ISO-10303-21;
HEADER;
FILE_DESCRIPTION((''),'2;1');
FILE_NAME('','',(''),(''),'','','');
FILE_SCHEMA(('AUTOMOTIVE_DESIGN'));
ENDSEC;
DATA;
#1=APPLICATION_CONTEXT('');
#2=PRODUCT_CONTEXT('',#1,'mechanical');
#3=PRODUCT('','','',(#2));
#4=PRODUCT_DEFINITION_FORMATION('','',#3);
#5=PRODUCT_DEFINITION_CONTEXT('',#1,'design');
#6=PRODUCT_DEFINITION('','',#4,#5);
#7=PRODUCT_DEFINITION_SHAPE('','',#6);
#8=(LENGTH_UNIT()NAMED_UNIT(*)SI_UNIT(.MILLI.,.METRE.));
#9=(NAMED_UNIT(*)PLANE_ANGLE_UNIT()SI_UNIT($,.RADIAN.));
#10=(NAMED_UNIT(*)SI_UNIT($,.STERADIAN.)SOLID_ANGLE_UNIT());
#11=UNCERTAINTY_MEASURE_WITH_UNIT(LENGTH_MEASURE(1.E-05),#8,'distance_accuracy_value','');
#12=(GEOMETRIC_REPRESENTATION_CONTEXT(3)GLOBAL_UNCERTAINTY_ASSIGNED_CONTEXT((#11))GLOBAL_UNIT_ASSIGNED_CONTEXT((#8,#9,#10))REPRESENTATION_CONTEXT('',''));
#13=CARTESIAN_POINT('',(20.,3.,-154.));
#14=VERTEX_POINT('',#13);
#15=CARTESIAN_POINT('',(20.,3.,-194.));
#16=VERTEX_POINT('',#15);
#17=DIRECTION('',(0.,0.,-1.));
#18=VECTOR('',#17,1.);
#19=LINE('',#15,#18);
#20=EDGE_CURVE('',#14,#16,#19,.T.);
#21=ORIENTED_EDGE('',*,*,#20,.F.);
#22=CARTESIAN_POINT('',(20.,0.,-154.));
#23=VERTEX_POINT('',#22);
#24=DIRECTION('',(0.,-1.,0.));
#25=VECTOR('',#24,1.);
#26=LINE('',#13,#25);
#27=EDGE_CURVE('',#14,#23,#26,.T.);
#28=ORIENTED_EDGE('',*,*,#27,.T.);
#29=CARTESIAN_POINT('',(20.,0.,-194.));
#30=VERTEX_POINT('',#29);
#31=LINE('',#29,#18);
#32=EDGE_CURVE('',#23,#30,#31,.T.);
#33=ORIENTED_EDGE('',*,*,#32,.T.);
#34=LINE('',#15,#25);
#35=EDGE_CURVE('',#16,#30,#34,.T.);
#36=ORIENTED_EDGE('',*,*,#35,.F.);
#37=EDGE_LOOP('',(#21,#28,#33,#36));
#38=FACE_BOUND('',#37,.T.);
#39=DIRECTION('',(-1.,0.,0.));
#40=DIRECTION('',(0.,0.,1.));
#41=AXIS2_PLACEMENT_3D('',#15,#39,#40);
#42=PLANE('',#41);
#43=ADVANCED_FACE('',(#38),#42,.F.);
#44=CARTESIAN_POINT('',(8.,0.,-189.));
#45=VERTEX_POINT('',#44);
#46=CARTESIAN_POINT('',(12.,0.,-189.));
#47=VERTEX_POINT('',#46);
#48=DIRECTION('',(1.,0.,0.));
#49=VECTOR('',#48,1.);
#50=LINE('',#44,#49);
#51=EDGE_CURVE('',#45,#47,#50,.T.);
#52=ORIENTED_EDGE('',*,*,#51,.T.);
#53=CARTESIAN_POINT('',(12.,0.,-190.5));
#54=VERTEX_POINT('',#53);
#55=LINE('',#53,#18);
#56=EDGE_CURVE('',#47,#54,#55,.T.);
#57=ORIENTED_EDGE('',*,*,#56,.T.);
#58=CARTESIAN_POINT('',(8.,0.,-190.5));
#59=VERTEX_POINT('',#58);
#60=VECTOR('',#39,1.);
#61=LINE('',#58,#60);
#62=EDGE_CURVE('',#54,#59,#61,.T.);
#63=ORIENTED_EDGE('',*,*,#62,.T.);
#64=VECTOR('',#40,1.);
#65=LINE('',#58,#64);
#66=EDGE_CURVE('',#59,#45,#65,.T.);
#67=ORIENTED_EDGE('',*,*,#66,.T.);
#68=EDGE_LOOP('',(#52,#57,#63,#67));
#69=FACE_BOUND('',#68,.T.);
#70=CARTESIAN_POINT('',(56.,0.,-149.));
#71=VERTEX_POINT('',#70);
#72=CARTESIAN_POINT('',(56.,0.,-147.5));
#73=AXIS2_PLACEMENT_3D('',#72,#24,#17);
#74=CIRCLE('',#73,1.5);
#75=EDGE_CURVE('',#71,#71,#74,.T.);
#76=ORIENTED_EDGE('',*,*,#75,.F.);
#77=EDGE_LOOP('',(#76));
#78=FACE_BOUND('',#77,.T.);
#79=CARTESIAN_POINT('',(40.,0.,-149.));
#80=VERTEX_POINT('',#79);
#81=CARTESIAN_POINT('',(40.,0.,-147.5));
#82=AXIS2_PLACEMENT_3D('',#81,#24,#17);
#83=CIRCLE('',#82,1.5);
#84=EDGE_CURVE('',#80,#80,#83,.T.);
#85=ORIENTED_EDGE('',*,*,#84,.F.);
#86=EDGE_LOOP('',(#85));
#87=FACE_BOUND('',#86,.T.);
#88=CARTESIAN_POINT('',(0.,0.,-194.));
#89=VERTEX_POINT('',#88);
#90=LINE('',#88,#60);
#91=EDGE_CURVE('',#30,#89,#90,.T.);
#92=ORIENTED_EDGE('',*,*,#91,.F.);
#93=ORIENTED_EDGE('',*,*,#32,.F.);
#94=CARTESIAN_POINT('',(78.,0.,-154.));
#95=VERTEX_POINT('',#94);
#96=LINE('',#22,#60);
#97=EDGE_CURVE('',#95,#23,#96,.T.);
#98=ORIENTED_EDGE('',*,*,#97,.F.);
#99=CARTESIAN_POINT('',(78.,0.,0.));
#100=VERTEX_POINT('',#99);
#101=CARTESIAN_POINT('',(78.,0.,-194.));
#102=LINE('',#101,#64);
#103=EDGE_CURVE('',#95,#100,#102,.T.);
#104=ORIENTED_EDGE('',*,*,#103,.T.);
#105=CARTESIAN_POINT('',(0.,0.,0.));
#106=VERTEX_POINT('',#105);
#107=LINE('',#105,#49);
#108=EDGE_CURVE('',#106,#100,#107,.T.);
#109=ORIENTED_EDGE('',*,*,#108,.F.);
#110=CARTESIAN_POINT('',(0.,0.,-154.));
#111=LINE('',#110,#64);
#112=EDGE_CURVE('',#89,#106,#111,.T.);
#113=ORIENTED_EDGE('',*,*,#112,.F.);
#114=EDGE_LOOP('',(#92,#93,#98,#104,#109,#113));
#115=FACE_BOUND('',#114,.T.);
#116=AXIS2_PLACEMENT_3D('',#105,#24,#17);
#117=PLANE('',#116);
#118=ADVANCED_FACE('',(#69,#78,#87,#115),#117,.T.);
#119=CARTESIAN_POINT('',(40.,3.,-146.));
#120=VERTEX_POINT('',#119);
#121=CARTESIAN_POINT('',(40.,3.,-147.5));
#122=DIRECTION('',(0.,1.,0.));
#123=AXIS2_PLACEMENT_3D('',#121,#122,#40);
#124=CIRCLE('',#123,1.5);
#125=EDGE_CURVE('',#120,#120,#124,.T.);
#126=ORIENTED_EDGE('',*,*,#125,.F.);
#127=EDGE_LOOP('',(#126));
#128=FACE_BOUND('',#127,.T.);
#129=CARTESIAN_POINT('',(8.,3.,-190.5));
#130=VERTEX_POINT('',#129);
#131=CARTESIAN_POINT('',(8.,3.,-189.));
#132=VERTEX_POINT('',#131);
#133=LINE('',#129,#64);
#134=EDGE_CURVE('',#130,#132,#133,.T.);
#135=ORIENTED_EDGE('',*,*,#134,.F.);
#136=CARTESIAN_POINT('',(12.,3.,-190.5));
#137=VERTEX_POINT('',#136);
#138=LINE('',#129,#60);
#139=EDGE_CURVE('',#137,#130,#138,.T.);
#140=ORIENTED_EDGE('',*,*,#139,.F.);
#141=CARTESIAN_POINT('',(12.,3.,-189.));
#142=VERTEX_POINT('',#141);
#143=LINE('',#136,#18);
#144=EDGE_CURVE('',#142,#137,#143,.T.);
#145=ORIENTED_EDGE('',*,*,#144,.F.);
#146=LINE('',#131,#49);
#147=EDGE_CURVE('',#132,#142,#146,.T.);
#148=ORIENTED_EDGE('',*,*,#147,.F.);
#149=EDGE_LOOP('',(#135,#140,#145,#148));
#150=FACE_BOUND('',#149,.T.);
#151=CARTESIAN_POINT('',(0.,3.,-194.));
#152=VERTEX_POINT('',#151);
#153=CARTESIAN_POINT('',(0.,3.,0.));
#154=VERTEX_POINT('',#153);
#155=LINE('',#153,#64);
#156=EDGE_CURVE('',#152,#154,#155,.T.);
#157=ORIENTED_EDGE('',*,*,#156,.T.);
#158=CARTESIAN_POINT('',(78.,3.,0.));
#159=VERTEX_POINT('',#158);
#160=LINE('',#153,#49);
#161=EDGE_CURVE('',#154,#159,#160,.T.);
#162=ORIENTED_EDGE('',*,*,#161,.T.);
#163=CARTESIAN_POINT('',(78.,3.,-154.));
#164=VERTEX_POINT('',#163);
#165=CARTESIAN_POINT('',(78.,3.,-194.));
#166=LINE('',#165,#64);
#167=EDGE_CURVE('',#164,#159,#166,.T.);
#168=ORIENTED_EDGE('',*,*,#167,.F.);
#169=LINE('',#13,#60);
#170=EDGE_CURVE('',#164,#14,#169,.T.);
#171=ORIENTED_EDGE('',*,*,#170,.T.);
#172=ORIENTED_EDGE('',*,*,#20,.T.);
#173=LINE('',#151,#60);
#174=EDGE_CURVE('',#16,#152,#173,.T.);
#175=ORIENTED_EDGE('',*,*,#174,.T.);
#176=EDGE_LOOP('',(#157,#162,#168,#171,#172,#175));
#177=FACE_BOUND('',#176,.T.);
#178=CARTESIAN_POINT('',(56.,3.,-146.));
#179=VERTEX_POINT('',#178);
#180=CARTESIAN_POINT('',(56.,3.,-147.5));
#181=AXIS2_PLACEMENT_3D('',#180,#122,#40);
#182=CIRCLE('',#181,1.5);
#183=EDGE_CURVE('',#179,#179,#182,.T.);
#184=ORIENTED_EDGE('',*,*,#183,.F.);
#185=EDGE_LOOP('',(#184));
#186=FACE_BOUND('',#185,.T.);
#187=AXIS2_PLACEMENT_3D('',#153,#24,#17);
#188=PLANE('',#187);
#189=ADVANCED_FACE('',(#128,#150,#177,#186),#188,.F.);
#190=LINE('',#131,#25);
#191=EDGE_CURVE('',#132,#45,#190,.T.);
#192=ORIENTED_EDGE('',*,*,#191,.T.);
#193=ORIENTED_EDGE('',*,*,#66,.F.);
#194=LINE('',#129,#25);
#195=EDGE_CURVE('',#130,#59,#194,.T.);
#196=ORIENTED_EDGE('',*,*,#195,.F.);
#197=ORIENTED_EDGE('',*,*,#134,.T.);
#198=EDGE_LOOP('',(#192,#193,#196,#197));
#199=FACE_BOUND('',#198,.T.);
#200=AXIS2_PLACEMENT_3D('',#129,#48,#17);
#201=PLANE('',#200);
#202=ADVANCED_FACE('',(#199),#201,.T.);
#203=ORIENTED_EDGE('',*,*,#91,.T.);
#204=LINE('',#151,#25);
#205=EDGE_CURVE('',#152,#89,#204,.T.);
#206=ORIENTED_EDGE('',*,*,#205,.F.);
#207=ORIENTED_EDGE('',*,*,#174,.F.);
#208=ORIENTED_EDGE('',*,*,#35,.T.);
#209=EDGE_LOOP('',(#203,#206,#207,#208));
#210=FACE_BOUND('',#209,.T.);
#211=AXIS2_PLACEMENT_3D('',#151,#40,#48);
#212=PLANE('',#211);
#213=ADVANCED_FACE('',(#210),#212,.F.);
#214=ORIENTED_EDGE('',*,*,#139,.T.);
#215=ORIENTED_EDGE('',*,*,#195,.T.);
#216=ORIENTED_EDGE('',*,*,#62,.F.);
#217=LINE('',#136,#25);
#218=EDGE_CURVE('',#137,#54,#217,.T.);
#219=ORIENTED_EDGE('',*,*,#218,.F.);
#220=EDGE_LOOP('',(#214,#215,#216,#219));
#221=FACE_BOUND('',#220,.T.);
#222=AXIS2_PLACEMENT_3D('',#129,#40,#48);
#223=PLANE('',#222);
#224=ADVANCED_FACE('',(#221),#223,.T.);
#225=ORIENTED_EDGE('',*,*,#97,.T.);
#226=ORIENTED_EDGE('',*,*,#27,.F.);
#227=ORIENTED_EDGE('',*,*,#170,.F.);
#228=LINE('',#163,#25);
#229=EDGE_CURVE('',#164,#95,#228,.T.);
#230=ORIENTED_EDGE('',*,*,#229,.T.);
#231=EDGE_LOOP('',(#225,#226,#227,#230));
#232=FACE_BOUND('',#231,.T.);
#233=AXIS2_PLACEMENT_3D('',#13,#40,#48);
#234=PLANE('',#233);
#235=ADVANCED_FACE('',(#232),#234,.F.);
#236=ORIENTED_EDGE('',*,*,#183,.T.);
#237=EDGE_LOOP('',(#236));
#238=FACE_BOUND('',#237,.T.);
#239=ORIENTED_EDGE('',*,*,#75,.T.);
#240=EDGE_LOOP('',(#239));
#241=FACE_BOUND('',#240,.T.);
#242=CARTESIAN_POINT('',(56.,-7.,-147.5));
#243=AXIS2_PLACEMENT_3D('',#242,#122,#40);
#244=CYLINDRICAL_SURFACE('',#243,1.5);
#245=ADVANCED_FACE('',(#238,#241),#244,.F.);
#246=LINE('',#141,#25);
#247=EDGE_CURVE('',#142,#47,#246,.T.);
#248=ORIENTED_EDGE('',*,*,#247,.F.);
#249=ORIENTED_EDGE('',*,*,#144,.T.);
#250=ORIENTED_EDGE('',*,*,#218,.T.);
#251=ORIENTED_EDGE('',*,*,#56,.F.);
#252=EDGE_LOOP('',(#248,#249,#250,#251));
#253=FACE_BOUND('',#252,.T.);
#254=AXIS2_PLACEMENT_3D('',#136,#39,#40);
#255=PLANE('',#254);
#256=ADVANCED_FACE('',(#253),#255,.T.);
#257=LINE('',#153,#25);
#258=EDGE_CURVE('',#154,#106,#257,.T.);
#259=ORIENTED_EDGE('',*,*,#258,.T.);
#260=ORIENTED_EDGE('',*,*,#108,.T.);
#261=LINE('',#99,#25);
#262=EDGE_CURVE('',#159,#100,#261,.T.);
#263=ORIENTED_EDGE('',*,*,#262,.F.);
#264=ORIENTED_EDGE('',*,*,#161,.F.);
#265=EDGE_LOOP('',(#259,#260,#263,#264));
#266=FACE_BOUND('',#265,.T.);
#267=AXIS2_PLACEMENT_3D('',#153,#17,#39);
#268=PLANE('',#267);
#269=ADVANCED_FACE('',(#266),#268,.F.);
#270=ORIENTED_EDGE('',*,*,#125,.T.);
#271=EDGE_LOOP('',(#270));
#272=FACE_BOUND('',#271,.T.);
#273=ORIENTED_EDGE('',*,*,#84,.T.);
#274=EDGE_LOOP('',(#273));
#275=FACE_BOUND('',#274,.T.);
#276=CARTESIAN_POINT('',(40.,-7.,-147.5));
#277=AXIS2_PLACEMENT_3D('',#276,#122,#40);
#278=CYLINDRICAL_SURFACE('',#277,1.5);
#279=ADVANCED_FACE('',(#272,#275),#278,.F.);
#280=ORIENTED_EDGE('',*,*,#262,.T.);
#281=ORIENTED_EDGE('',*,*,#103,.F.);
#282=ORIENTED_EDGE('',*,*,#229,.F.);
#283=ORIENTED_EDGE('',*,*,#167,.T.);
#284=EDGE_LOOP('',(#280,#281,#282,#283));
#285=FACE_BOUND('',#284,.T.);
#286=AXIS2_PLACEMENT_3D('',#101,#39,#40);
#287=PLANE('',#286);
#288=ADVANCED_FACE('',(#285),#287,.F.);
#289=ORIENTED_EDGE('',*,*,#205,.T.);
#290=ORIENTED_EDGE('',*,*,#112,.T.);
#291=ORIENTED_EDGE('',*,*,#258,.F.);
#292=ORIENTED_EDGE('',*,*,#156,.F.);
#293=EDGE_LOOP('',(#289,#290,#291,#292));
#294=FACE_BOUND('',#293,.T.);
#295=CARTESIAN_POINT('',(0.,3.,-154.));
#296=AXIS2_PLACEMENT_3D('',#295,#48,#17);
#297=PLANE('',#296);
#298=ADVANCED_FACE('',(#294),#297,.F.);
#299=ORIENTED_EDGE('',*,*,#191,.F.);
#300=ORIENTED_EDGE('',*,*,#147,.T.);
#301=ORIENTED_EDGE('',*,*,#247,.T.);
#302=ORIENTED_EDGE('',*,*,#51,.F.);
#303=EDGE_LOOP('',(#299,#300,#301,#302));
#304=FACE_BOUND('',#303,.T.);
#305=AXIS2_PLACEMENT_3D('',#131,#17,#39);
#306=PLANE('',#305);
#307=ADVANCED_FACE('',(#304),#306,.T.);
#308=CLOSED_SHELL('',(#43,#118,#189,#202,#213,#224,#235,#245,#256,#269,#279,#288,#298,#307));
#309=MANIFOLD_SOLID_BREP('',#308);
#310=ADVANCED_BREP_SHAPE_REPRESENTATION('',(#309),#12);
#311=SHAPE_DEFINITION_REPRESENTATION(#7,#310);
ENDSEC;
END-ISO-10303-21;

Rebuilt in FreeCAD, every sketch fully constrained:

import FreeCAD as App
import Part
import Sketcher
Q = App.Units.Quantity

doc = App.newDocument("Part")
params = doc.addObject("Spreadsheet::Sheet", "Params")
for row, (alias, value) in enumerate([
    ("sketch1_width", "90 mm"),
    ("sketch1_width2", "70 mm"),
    ("sketch1_width3", "4 mm"),
    ("sketch1_height", "194 mm"),
    ("sketch1_height2", "154 mm"),
    ("pad1_length", "3 mm"),
    ("sketch2_width", "12 mm"),
    ("sketch2_height", "3 mm"),
    ("sketch3_diameter", "3 mm"),
    ("pocket2_length", "10 mm"),
], start=1):
    params.set(f"A{row}", alias)
    params.set(f"B{row}", "=" + value)
    params.setAlias(f"B{row}", alias)

body = doc.addObject("PartDesign::Body", "Body")

# Sketch on XZ plane
sketch1 = body.newObject("Sketcher::SketchObject", "Sketch")
sketch1.AttachmentSupport = (doc.getObject("XZ_Plane"), [""])
sketch1.MapMode = "FlatFace"
sketch1.addGeometry(Part.LineSegment(App.Vector(0, -194, 0), App.Vector(0, 0, 0)), False)
sketch1.addGeometry(Part.LineSegment(App.Vector(0, 0, 0), App.Vector(90, 0, 0)), False)
sketch1.addGeometry(Part.LineSegment(App.Vector(90, 0, 0), App.Vector(90, -154, 0)), False)
sketch1.addGeometry(Part.LineSegment(App.Vector(90, -154, 0), App.Vector(20, -154, 0)), False)
sketch1.addGeometry(Part.LineSegment(App.Vector(20, -154, 0), App.Vector(20, -194, 0)), False)
sketch1.addGeometry(Part.LineSegment(App.Vector(20, -194, 0), App.Vector(0, -194, 0)), False)
sketch1.addGeometry(Part.LineSegment(App.Vector(8, -189, 0), App.Vector(8, -190.5, 0)), False)
sketch1.addGeometry(Part.LineSegment(App.Vector(8, -190.5, 0), App.Vector(12, -190.5, 0)), False)
sketch1.addGeometry(Part.LineSegment(App.Vector(12, -190.5, 0), App.Vector(12, -189, 0)), False)
sketch1.addGeometry(Part.LineSegment(App.Vector(12, -189, 0), App.Vector(8, -189, 0)), False)
sketch1.addConstraint(Sketcher.Constraint("Coincident", 0, 2, 1, 1))
sketch1.addConstraint(Sketcher.Constraint("Coincident", 1, 2, 2, 1))
sketch1.addConstraint(Sketcher.Constraint("Coincident", 2, 2, 3, 1))
sketch1.addConstraint(Sketcher.Constraint("Coincident", 3, 2, 4, 1))
sketch1.addConstraint(Sketcher.Constraint("Coincident", 4, 2, 5, 1))
sketch1.addConstraint(Sketcher.Constraint("Coincident", 5, 2, 0, 1))
sketch1.addConstraint(Sketcher.Constraint("Coincident", 6, 2, 7, 1))
sketch1.addConstraint(Sketcher.Constraint("Coincident", 7, 2, 8, 1))
sketch1.addConstraint(Sketcher.Constraint("Coincident", 8, 2, 9, 1))
sketch1.addConstraint(Sketcher.Constraint("Coincident", 9, 2, 6, 1))
sketch1.addConstraint(Sketcher.Constraint("Vertical", 0))
sketch1.addConstraint(Sketcher.Constraint("Horizontal", 1))
sketch1.addConstraint(Sketcher.Constraint("Vertical", 2))
sketch1.addConstraint(Sketcher.Constraint("Horizontal", 3))
sketch1.addConstraint(Sketcher.Constraint("Vertical", 4))
sketch1.addConstraint(Sketcher.Constraint("Horizontal", 5))
sketch1.addConstraint(Sketcher.Constraint("Vertical", 6))
sketch1.addConstraint(Sketcher.Constraint("Horizontal", 7))
sketch1.addConstraint(Sketcher.Constraint("Vertical", 8))
sketch1.addConstraint(Sketcher.Constraint("Horizontal", 9))
sketch1.addConstraint(Sketcher.Constraint("Coincident", 0, 2, -1, 1))
sketch1.addConstraint(Sketcher.Constraint("DistanceX", 1, 1, 1, 2, Q("90 mm")))
sketch1.addConstraint(Sketcher.Constraint("DistanceX", 3, 2, 3, 1, Q("70 mm")))
sketch1.addConstraint(Sketcher.Constraint("DistanceX", 7, 1, 7, 2, Q("4 mm")))
sketch1.addConstraint(Sketcher.Constraint("DistanceY", 0, 1, 0, 2, Q("194 mm")))
sketch1.addConstraint(Sketcher.Constraint("DistanceY", 2, 2, 2, 1, Q("154 mm")))
sketch1.addConstraint(Sketcher.Constraint("DistanceY", 6, 2, 6, 1, Q("1.5 mm")))
sketch1.addConstraint(Sketcher.Constraint("DistanceX", -1, 1, 6, 2, Q("8 mm")))
sketch1.addConstraint(Sketcher.Constraint("DistanceY", 8, 2, -1, 1, Q("189 mm")))
sketch1.setExpression("Constraints[21]", "Params.sketch1_width")
sketch1.setExpression("Constraints[22]", "Params.sketch1_width2")
sketch1.setExpression("Constraints[23]", "Params.sketch1_width3")
sketch1.setExpression("Constraints[24]", "Params.sketch1_height")
sketch1.setExpression("Constraints[25]", "Params.sketch1_height2")
pad1 = body.newObject("PartDesign::Pad", "Pad")
pad1.Profile = sketch1
pad1.setExpression("Length", "Params.pad1_length")
pad1.Reversed = True

# Sketch on XY plane
sketch2 = body.newObject("Sketcher::SketchObject", "Sketch001")
sketch2.AttachmentSupport = (doc.getObject("XY_Plane"), [""])
sketch2.MapMode = "FlatFace"
sketch2.addGeometry(Part.LineSegment(App.Vector(78, 3, 0), App.Vector(78, 0, 0)), False)
sketch2.addGeometry(Part.LineSegment(App.Vector(78, 0, 0), App.Vector(90, 0, 0)), False)
sketch2.addGeometry(Part.LineSegment(App.Vector(90, 0, 0), App.Vector(90, 3, 0)), False)
sketch2.addGeometry(Part.LineSegment(App.Vector(90, 3, 0), App.Vector(78, 3, 0)), False)
sketch2.addConstraint(Sketcher.Constraint("Coincident", 0, 2, 1, 1))
sketch2.addConstraint(Sketcher.Constraint("Coincident", 1, 2, 2, 1))
sketch2.addConstraint(Sketcher.Constraint("Coincident", 2, 2, 3, 1))
sketch2.addConstraint(Sketcher.Constraint("Coincident", 3, 2, 0, 1))
sketch2.addConstraint(Sketcher.Constraint("Vertical", 0))
sketch2.addConstraint(Sketcher.Constraint("Horizontal", 1))
sketch2.addConstraint(Sketcher.Constraint("Vertical", 2))
sketch2.addConstraint(Sketcher.Constraint("Horizontal", 3))
sketch2.addConstraint(Sketcher.Constraint("PointOnObject", 0, 2, -1))
sketch2.addConstraint(Sketcher.Constraint("DistanceX", 1, 1, 1, 2, Q("12 mm")))
sketch2.addConstraint(Sketcher.Constraint("DistanceY", 0, 2, 0, 1, Q("3 mm")))
sketch2.addConstraint(Sketcher.Constraint("DistanceX", -1, 1, 0, 2, Q("78 mm")))
sketch2.setExpression("Constraints[9]", "Params.sketch2_width")
sketch2.setExpression("Constraints[10]", "Params.sketch2_height")
pocket1 = body.newObject("PartDesign::Pocket", "Pocket")
pocket1.Profile = sketch2
pocket1.Type = "ThroughAll"

# Sketch on XZ plane
sketch3 = body.newObject("Sketcher::SketchObject", "Sketch002")
sketch3.AttachmentSupport = (doc.getObject("XZ_Plane"), [""])
sketch3.MapMode = "FlatFace"
sketch3.AttachmentOffset = App.Placement(App.Vector(0, 0, -3), App.Rotation())
sketch3.addGeometry(Part.Circle(App.Vector(40, -147.5, 0), App.Vector(0, 0, 1), 1.5), False)
sketch3.addGeometry(Part.Circle(App.Vector(56, -147.5, 0), App.Vector(0, 0, 1), 1.5), False)
sketch3.addConstraint(Sketcher.Constraint("Equal", 0, 1))
sketch3.addConstraint(Sketcher.Constraint("Horizontal", 0, 3, 1, 3))
sketch3.addConstraint(Sketcher.Constraint("Diameter", 0, Q("3 mm")))
sketch3.addConstraint(Sketcher.Constraint("DistanceX", -1, 1, 0, 3, Q("40 mm")))
sketch3.addConstraint(Sketcher.Constraint("DistanceX", -1, 1, 1, 3, Q("56 mm")))
sketch3.addConstraint(Sketcher.Constraint("DistanceY", 0, 3, -1, 1, Q("147.5 mm")))
sketch3.setExpression("Constraints[2]", "Params.sketch3_diameter")
pocket2 = body.newObject("PartDesign::Pocket", "Pocket001")
pocket2.Profile = sketch3
pocket2.setExpression("Length", "Params.pocket2_length")
pocket2.Reversed = True

doc.recompute()
